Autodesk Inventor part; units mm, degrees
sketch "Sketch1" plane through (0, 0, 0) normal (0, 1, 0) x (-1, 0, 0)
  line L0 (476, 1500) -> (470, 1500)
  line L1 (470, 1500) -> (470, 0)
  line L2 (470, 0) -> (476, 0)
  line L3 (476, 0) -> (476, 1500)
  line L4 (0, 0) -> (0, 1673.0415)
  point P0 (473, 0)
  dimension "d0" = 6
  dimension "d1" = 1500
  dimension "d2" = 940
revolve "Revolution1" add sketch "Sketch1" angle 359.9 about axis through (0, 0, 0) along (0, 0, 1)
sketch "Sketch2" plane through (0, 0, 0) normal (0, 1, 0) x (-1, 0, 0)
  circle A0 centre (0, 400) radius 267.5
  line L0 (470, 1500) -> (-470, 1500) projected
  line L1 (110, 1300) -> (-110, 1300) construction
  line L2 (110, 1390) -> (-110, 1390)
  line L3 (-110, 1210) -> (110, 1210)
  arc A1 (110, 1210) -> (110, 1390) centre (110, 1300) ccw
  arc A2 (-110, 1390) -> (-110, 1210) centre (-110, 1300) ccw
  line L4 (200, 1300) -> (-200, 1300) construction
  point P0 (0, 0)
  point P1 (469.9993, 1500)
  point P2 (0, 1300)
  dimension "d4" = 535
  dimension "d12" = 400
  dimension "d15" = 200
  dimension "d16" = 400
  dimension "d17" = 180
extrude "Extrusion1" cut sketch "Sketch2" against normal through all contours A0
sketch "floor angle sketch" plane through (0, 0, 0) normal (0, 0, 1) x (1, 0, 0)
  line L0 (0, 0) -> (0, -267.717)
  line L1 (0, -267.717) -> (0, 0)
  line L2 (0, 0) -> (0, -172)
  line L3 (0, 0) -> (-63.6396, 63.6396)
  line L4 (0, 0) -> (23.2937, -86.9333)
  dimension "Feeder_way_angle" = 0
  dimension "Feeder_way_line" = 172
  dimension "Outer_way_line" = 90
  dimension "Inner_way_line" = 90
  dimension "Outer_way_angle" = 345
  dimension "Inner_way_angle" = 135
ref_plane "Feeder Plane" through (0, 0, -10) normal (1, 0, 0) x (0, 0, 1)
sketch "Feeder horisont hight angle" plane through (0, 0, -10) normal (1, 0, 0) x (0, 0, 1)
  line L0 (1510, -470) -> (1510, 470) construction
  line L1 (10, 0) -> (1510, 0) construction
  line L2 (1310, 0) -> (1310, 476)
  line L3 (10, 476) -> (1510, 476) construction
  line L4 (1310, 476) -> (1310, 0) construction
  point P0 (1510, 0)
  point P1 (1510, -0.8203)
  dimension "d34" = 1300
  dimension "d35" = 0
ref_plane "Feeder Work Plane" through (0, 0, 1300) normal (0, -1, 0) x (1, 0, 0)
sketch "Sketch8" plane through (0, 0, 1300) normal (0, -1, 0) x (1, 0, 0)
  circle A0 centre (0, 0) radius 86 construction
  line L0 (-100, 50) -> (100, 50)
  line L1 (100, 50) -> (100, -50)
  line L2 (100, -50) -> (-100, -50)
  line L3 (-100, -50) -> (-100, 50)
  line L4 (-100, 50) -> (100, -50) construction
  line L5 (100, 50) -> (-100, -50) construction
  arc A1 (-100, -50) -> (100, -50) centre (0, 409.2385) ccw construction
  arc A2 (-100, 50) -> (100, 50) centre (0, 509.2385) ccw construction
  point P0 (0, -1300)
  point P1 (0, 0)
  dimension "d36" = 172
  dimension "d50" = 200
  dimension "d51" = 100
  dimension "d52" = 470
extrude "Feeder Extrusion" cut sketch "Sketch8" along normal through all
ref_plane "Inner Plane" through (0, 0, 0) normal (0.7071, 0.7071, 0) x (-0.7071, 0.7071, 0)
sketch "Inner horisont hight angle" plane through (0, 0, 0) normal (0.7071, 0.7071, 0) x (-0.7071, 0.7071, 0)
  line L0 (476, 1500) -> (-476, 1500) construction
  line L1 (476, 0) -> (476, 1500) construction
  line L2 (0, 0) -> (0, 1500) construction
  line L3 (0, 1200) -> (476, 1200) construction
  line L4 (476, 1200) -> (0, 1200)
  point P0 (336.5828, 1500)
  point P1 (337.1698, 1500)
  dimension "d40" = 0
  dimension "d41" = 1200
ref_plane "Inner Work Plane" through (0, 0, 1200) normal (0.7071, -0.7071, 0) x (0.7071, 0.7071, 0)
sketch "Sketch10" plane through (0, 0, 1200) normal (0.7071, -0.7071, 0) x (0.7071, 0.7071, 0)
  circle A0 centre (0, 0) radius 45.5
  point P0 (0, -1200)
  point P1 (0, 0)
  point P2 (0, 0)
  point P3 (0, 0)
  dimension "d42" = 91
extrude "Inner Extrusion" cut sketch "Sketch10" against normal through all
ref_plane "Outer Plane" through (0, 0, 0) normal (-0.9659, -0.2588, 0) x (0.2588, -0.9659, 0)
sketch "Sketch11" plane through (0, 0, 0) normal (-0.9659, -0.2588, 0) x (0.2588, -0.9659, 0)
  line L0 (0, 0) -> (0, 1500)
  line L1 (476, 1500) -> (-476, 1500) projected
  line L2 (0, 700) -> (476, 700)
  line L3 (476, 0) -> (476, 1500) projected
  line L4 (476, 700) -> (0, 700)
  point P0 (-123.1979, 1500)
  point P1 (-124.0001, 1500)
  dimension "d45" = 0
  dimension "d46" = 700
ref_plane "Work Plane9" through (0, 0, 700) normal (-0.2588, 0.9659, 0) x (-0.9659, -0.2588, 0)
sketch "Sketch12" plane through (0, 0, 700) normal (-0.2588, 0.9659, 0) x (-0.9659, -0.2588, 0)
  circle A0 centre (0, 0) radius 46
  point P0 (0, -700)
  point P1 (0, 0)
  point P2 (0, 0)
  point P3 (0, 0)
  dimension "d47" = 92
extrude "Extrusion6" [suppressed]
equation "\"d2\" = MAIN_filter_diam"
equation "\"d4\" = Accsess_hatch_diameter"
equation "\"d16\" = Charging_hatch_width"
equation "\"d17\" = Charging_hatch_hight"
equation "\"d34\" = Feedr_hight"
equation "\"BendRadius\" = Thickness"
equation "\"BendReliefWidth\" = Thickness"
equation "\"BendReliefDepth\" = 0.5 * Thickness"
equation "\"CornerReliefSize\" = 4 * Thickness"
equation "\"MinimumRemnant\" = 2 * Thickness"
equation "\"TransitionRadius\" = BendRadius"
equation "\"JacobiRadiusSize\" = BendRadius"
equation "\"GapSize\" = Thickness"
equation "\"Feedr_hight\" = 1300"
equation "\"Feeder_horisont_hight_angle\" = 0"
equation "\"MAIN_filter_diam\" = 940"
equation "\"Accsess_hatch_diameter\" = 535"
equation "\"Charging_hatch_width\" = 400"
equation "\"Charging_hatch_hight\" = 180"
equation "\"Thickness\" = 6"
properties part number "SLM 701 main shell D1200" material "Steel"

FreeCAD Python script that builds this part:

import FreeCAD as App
import Part
import Sketcher

V = App.Vector
Q = App.Units.Quantity


def add_polygon(sketch, points):
    """Adds a closed chain of lines whose ends are joined by coincident constraints."""
    first, n = sketch.GeometryCount, len(points)
    for a, b in zip(points, points[1:] + points[:1]):
        sketch.addGeometry(Part.LineSegment(App.Vector(*a, 0), App.Vector(*b, 0)), False)
    for i in range(n):
        sketch.addConstraint(Sketcher.Constraint("Coincident", first + i, 2, first + (i + 1) % n, 1))

doc = App.newDocument("Part")
body = doc.addObject("PartDesign::Body", "Body")

sketch1 = body.newObject("Sketcher::SketchObject", "Sketch")
sketch1.AttachmentSupport = (doc.getObject("XZ_Plane"), [""])
sketch1.MapMode = "FlatFace"
add_polygon(sketch1, [(-476, 0), (-476, 1500), (-470, 1500), (-470, 0)])
sketch1.addConstraint([
    Sketcher.Constraint("Vertical", 0),
    Sketcher.Constraint("Horizontal", 1),
    Sketcher.Constraint("Vertical", 2),
    Sketcher.Constraint("Horizontal", 3),
    Sketcher.Constraint("PointOnObject", 2, 2, -1),
    Sketcher.Constraint("DistanceX", 1, 1, 1, 2, Q("6 mm")),
    Sketcher.Constraint("DistanceY", 0, 1, 0, 2, Q("1500 mm")),
    Sketcher.Constraint("DistanceX", 0, 2, -1, 1, Q("476 mm")),
])
revolution = body.newObject("PartDesign::Revolution", "Revolution")
revolution.Profile = sketch1
revolution.ReferenceAxis = (sketch1, ["V_Axis"])
revolution.Angle = 359.9

sketch2 = body.newObject("Sketcher::SketchObject", "Sketch001")
sketch2.AttachmentSupport = (doc.getObject("XZ_Plane"), [""])
sketch2.MapMode = "FlatFace"
sketch2.addGeometry(Part.Circle(V(0, 400, 0), V(0, 0, 1), 268), False)
sketch2.addConstraint([
    Sketcher.Constraint("PointOnObject", 0, 3, -2),
    Sketcher.Constraint("Diameter", 0, Q("535 mm")),
    Sketcher.Constraint("DistanceY", -1, 1, 0, 3, Q("400 mm")),
])
pocket1 = body.newObject("PartDesign::Pocket", "Pocket")
pocket1.Profile = sketch2
pocket1.Type = "ThroughAll"
pocket1.Reversed = True

sketch3 = body.newObject("Sketcher::SketchObject", "Sketch002")
sketch3.AttachmentSupport = (doc.getObject("XZ_Plane"), [""])
sketch3.MapMode = "FlatFace"
add_polygon(sketch3, [(100, 1350), (-100, 1350), (-100, 1250), (100, 1250)])
sketch3.addConstraint([
    Sketcher.Constraint("Horizontal", 0),
    Sketcher.Constraint("Vertical", 1),
    Sketcher.Constraint("Horizontal", 2),
    Sketcher.Constraint("Vertical", 3),
    Sketcher.Constraint("DistanceX", 0, 2, 0, 1, Q("200 mm")),
    Sketcher.Constraint("DistanceY", 1, 2, 1, 1, Q("100 mm")),
    Sketcher.Constraint("DistanceX", 0, 2, -1, 1, Q("100 mm")),
    Sketcher.Constraint("DistanceY", -1, 1, 0, 2, Q("1350 mm")),
])
pocket2 = body.newObject("PartDesign::Pocket", "Pocket001")
pocket2.Profile = sketch3
pocket2.Type = "ThroughAll"
pocket2.Reversed = True

sketch4 = body.newObject("Sketcher::SketchObject", "Sketch003")
sketch4.Placement = App.Placement(V(0, 0, 1200), App.Rotation(V(0.707106781, 0.707106781, 0), V(0, 0, 0.999999999), V(0.707106781, -0.707106781, 0), "ZXY"))
sketch4.addGeometry(Part.Circle(V(0, 0, 0), V(0, 0, 1), 46), False)
sketch4.addConstraint([
    Sketcher.Constraint("Coincident", 0, 3, -1, 1),
    Sketcher.Constraint("Diameter", 0, Q("91 mm")),
])
pocket3 = body.newObject("PartDesign::Pocket", "Pocket002")
pocket3.Profile = sketch4
pocket3.Type = "ThroughAll"

doc.recompute()
